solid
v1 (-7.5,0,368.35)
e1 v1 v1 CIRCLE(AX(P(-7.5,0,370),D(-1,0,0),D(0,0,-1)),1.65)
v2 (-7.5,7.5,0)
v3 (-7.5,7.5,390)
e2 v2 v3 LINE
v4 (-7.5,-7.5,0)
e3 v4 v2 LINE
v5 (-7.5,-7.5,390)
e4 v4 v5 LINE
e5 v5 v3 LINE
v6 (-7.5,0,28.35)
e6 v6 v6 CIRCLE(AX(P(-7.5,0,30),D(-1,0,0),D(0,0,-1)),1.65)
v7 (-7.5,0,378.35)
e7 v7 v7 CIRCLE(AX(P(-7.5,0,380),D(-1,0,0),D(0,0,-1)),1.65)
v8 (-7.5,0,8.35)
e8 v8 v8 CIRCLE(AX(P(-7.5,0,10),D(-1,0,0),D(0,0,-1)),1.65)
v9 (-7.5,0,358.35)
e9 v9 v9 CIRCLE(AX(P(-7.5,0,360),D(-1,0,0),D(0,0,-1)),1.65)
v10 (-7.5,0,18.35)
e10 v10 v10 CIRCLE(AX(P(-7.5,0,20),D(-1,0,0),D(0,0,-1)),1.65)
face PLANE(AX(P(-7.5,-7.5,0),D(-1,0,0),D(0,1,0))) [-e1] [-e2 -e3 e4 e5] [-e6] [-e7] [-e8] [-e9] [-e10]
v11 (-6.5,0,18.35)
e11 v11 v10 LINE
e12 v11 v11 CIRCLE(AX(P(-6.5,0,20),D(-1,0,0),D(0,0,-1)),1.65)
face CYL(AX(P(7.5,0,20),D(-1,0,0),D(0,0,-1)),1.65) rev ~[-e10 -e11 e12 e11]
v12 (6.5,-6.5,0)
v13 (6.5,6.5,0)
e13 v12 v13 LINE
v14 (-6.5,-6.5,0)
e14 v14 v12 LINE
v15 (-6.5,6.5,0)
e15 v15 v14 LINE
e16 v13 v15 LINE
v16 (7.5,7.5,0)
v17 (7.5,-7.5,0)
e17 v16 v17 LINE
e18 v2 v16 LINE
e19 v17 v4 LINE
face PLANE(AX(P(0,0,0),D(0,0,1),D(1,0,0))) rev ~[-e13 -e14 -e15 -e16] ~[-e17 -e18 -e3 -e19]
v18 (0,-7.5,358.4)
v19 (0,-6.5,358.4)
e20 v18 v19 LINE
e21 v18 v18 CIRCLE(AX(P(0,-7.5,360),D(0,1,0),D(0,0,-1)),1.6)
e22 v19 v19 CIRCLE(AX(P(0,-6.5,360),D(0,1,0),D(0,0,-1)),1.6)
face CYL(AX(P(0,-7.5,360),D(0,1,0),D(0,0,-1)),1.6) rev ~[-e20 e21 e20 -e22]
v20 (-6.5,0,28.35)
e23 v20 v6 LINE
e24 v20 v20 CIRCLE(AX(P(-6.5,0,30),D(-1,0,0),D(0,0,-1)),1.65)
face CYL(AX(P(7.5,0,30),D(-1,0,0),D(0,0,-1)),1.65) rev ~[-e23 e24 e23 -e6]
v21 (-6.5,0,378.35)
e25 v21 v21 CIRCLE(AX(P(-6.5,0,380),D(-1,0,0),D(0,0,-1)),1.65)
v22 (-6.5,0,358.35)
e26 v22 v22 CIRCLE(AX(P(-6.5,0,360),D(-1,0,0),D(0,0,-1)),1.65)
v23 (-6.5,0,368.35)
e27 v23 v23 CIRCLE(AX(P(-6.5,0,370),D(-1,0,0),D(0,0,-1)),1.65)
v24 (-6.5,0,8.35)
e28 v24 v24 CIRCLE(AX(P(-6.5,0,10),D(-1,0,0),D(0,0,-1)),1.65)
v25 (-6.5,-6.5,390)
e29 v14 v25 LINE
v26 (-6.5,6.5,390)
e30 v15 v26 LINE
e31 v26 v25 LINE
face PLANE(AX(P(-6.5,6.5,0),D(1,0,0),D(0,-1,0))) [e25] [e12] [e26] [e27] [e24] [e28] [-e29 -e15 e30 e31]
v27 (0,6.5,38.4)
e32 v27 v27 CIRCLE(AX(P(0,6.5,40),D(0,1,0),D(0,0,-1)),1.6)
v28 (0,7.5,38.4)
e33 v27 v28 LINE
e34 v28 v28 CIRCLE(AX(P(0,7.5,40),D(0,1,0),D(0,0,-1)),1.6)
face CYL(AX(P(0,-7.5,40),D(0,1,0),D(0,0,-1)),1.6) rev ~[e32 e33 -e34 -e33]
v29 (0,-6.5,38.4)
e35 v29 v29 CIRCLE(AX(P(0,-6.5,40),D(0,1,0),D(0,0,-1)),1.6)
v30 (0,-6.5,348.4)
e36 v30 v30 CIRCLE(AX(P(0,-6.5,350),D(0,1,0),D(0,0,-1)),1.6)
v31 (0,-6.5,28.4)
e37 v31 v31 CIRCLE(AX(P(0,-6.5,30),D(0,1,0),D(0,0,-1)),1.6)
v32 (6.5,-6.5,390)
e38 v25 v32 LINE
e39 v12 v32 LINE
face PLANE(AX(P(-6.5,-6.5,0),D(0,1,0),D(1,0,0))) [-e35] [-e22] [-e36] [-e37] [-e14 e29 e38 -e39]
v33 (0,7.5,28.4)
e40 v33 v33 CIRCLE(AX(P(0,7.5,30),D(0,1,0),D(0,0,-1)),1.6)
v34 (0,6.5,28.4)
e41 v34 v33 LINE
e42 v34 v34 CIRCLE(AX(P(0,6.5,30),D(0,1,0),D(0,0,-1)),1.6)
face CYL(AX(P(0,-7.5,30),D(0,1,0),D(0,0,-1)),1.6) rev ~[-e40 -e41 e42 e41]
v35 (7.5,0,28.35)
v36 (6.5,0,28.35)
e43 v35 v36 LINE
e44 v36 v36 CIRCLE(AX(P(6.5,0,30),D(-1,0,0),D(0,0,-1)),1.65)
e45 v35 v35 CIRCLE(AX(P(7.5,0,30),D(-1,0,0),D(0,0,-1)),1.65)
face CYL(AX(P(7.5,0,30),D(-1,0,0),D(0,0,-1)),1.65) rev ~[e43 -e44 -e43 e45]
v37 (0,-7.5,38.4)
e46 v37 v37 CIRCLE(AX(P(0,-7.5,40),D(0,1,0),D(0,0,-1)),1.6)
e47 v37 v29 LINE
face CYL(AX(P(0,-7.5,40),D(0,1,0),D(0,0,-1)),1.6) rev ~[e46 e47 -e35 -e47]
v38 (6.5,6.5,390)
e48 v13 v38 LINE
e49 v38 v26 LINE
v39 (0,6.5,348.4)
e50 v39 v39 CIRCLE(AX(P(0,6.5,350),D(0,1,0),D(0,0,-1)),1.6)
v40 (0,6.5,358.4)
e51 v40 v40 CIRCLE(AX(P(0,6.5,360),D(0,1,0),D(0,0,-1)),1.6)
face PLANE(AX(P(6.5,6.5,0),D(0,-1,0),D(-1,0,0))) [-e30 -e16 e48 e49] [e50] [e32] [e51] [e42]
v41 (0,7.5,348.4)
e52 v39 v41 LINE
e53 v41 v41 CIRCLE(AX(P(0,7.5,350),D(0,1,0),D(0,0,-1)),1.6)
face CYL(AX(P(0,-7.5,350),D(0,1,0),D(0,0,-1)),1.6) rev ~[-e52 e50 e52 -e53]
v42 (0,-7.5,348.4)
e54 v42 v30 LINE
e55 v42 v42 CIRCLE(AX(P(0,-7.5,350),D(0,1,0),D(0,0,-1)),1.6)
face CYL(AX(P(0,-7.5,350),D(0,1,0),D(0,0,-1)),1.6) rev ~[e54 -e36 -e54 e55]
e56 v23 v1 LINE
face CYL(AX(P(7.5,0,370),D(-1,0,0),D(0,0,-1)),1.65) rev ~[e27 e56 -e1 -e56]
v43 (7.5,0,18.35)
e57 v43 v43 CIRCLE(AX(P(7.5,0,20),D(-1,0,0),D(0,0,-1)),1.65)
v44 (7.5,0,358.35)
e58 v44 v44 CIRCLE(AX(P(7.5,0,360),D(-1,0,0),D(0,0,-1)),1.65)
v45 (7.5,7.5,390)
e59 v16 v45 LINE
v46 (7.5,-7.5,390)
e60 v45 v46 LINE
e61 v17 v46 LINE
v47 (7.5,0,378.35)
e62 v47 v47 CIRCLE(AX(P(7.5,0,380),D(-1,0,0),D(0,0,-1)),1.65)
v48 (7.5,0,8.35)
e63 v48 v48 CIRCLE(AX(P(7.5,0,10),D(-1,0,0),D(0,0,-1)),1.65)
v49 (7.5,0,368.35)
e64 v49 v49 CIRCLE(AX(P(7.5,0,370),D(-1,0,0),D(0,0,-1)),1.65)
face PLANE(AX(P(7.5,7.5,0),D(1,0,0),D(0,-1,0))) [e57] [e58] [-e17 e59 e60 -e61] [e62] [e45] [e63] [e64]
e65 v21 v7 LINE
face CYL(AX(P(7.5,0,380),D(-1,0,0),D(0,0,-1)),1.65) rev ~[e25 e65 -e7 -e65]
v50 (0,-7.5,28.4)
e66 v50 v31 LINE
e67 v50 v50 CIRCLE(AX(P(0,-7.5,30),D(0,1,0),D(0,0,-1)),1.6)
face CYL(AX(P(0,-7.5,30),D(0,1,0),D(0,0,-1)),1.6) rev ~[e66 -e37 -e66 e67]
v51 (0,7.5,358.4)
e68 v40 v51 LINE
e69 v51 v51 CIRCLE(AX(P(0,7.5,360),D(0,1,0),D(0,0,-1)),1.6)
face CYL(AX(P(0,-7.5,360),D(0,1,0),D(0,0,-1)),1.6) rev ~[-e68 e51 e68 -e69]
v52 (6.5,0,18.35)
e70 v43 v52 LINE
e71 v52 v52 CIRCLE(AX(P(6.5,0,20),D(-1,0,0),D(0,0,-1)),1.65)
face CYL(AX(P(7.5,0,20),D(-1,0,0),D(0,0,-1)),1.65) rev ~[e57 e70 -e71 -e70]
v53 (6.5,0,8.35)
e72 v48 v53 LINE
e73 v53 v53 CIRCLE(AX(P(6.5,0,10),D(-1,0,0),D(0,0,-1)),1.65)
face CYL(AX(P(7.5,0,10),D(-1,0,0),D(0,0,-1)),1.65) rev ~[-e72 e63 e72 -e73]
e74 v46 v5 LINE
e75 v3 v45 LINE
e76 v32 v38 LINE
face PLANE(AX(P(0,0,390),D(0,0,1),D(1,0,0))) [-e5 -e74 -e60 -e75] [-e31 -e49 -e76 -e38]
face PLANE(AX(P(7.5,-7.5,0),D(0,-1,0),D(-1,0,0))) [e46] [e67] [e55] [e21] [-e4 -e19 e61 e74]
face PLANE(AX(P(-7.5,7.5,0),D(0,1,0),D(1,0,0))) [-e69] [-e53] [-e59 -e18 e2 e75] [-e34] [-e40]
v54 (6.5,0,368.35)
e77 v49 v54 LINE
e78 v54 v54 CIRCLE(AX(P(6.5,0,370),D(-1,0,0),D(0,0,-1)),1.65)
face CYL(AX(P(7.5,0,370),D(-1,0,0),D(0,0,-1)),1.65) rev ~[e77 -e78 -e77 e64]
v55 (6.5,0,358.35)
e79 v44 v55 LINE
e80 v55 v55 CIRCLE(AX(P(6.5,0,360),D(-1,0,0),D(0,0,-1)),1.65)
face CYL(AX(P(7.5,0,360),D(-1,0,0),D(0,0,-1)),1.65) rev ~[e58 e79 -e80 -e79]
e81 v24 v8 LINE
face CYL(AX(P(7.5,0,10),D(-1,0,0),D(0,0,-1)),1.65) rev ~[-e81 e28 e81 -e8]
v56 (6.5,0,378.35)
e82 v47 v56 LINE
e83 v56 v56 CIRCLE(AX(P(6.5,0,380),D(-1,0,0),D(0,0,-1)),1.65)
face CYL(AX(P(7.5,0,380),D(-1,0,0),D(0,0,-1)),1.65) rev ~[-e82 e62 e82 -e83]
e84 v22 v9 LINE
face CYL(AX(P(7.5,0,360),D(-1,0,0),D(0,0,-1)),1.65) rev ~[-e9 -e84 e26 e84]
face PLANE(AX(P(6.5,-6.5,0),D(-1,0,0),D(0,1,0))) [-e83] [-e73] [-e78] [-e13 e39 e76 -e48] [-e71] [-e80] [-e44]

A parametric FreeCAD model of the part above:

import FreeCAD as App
import Part
import Sketcher
from FreeCAD import Vector

doc = App.newDocument("Part")
body = doc.addObject("PartDesign::Body", "Body")

# Sketch on XY plane
sketch1 = body.newObject("Sketcher::SketchObject", "Sketch")
sketch1.AttachmentSupport = (doc.getObject("XY_Plane"), [""])
sketch1.MapMode = "FlatFace"
sketch1.addGeometry([
    Part.LineSegment(Vector(-8, -8, 0), Vector(8, -8, 0)),  # 0
    Part.LineSegment(Vector(8, -8, 0), Vector(8, 8, 0)),  # 1
    Part.LineSegment(Vector(8, 8, 0), Vector(-8, 8, 0)),  # 2
    Part.LineSegment(Vector(-8, 8, 0), Vector(-8, -8, 0)),  # 3
    Part.LineSegment(Vector(-6, 6, 0), Vector(6, 6, 0)),  # 4
    Part.LineSegment(Vector(6, 6, 0), Vector(6, -6, 0)),  # 5
    Part.LineSegment(Vector(6, -6, 0), Vector(-6, -6, 0)),  # 6
    Part.LineSegment(Vector(-6, -6, 0), Vector(-6, 6, 0)),  # 7
], False)
sketch1.addConstraint([
    Sketcher.Constraint("Coincident", 0, 2, 1, 1),
    Sketcher.Constraint("Coincident", 1, 2, 2, 1),
    Sketcher.Constraint("Coincident", 2, 2, 3, 1),
    Sketcher.Constraint("Coincident", 3, 2, 0, 1),
    Sketcher.Constraint("Coincident", 4, 2, 5, 1),
    Sketcher.Constraint("Coincident", 5, 2, 6, 1),
    Sketcher.Constraint("Coincident", 6, 2, 7, 1),
    Sketcher.Constraint("Coincident", 7, 2, 4, 1),
    Sketcher.Constraint("Horizontal", 0),
    Sketcher.Constraint("Vertical", 1),
    Sketcher.Constraint("Horizontal", 2),
    Sketcher.Constraint("Vertical", 3),
    Sketcher.Constraint("Horizontal", 4),
    Sketcher.Constraint("Vertical", 5),
    Sketcher.Constraint("Horizontal", 6),
    Sketcher.Constraint("Vertical", 7),
    Sketcher.Constraint("Symmetric", 0, 2, 2, 2, -1, 1),
    Sketcher.Constraint("Symmetric", 4, 2, 6, 2, -1, 1),
    Sketcher.Constraint("Equal", 2, 1),
    Sketcher.Constraint("Equal", 6, 5),
    Sketcher.Constraint("DistanceX", 0, 1, 0, 2, 15.0),
    Sketcher.Constraint("DistanceX", 4, 2, 1, 2, 1.0),
])
pad1 = body.newObject("PartDesign::Pad", "Pad")
pad1.Profile = sketch1
pad1.Length = 390

# Sketch on YZ plane
sketch2 = body.newObject("Sketcher::SketchObject", "Sketch001")
sketch2.AttachmentSupport = (doc.getObject("YZ_Plane"), [""])
sketch2.MapMode = "FlatFace"
sketch2.AttachmentOffset = App.Placement(Vector(0, 0, 7.5), App.Rotation())
sketch2.addGeometry([
    Part.Circle(Vector(0, 380, 0), Vector(0, 0, 1), 1.6),  # 0
    Part.Circle(Vector(0, 370, 0), Vector(0, 0, 1), 1.6),  # 1
    Part.Circle(Vector(0, 10, 0), Vector(0, 0, 1), 1.6),  # 2
    Part.Circle(Vector(0, 20, 0), Vector(0, 0, 1), 1.6),  # 3
    Part.Circle(Vector(0, 30, 0), Vector(0, 0, 1), 1.6),  # 4
    Part.Circle(Vector(0, 360, 0), Vector(0, 0, 1), 1.6),  # 5
], False)
sketch2.addConstraint([
    Sketcher.Constraint("Equal", 0, 1),
    Sketcher.Constraint("Equal", 1, 2),
    Sketcher.Constraint("Equal", 2, 3),
    Sketcher.Constraint("Equal", 3, 4),
    Sketcher.Constraint("Equal", 4, 5),
    Sketcher.Constraint("PointOnObject", 0, 3, -2),
    Sketcher.Constraint("PointOnObject", 1, 3, -2),
    Sketcher.Constraint("PointOnObject", 2, 3, -2),
    Sketcher.Constraint("PointOnObject", 3, 3, -2),
    Sketcher.Constraint("PointOnObject", 4, 3, -2),
    Sketcher.Constraint("PointOnObject", 5, 3, -2),
    Sketcher.Constraint("Diameter", 0, 3.3),
    Sketcher.Constraint("DistanceY", -1, 1, 0, 3, 380.0),
    Sketcher.Constraint("DistanceY", -1, 1, 1, 3, 370.0),
    Sketcher.Constraint("DistanceY", -1, 1, 2, 3, 10.0),
    Sketcher.Constraint("DistanceY", -1, 1, 3, 3, 20.0),
    Sketcher.Constraint("DistanceY", -1, 1, 4, 3, 30.0),
    Sketcher.Constraint("DistanceY", -1, 1, 5, 3, 360.0),
])
doc.recompute()
hole = body.newObject("PartDesign::Hole", "Hole")
hole.Profile = sketch2
hole.ThreadType = "None"
hole.Diameter = 3.3
hole.DepthType = "ThroughAll"

# Sketch on XZ plane
sketch3 = body.newObject("Sketcher::SketchObject", "Sketch002")
sketch3.AttachmentSupport = (doc.getObject("XZ_Plane"), [""])
sketch3.MapMode = "FlatFace"
sketch3.AttachmentOffset = App.Placement(Vector(0, 0, 7.5), App.Rotation())
sketch3.addGeometry([
    Part.Circle(Vector(0, 360, 0), Vector(0, 0, 1), 1.6),
    Part.Circle(Vector(0, 350, 0), Vector(0, 0, 1), 1.6),
    Part.Circle(Vector(0, 40, 0), Vector(0, 0, 1), 1.6),
    Part.Circle(Vector(0, 30, 0), Vector(0, 0, 1), 1.6),
], False)
sketch3.addConstraint([
    Sketcher.Constraint("Equal", 0, 1),
    Sketcher.Constraint("Equal", 1, 2),
    Sketcher.Constraint("Equal", 2, 3),
    Sketcher.Constraint("PointOnObject", 0, 3, -2),
    Sketcher.Constraint("PointOnObject", 1, 3, -2),
    Sketcher.Constraint("PointOnObject", 2, 3, -2),
    Sketcher.Constraint("PointOnObject", 3, 3, -2),
    Sketcher.Constraint("Diameter", 0, 3.2),
    Sketcher.Constraint("DistanceY", -1, 1, 0, 3, 360.0),
    Sketcher.Constraint("DistanceY", -1, 1, 1, 3, 350.0),
    Sketcher.Constraint("DistanceY", -1, 1, 2, 3, 40.0),
    Sketcher.Constraint("DistanceY", -1, 1, 3, 3, 30.0),
])
doc.recompute()
hole2 = body.newObject("PartDesign::Hole", "Hole001")
hole2.Profile = sketch3
hole2.ThreadType = "None"
hole2.Diameter = 3.2
hole2.DepthType = "ThroughAll"

doc.recompute()
